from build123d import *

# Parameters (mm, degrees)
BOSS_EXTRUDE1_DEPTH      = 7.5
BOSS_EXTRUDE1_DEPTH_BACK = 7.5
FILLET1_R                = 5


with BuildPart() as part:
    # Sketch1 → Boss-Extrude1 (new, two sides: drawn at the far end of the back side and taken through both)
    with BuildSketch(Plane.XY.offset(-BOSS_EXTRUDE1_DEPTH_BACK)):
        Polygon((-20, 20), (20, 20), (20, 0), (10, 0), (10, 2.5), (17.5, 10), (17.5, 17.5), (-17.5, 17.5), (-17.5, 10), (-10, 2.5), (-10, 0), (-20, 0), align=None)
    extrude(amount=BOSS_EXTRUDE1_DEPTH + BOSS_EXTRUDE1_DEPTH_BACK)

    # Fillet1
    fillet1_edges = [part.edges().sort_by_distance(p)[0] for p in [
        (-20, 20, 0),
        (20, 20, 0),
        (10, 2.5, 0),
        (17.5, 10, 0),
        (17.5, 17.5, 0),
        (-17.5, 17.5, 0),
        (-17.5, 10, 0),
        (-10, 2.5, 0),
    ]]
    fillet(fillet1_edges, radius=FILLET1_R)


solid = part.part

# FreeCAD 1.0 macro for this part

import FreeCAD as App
import Part
import Sketcher


def edges_at(feature, points):
    """Names of the edges that pass closest to the given points."""
    edges = feature.Shape.Edges
    near = lambda p: min(range(len(edges)), key=lambda i: edges[i].distToShape(Part.Vertex(*p))[0])
    return sorted({f"Edge{near(p) + 1}" for p in points})


def add_polygon(sketch, points):
    """Adds a closed chain of lines whose ends are joined by coincident constraints."""
    first, n = sketch.GeometryCount, len(points)
    for a, b in zip(points, points[1:] + points[:1]):
        sketch.addGeometry(Part.LineSegment(App.Vector(*a, 0), App.Vector(*b, 0)), False)
    for i in range(n):
        sketch.addConstraint(Sketcher.Constraint("Coincident", first + i, 2, first + (i + 1) % n, 1))

doc = App.newDocument("Part")
body = doc.addObject("PartDesign::Body", "Body")

sketch1 = body.newObject("Sketcher::SketchObject", "Sketch")
sketch1.AttachmentSupport = (doc.getObject("XY_Plane"), [""])
sketch1.MapMode = "FlatFace"
add_polygon(sketch1, [(20, 20), (-20, 20), (-20, 0), (-10, 0), (-10, 2.5), (-17.5, 10), (-17.5, 17.5), (17.5, 17.5), (17.5, 10), (10, 2.5), (10, 0), (20, 0)])
sketch1.addConstraint([
    Sketcher.Constraint("Horizontal", 0),
    Sketcher.Constraint("Vertical", 1),
    Sketcher.Constraint("Horizontal", 2),
    Sketcher.Constraint("Vertical", 3),
    Sketcher.Constraint("Vertical", 5),
    Sketcher.Constraint("Horizontal", 6),
    Sketcher.Constraint("Vertical", 7),
    Sketcher.Constraint("Vertical", 9),
    Sketcher.Constraint("Horizontal", 10),
    Sketcher.Constraint("Vertical", 11),
    Sketcher.Constraint("Symmetric", 2, 2, 9, 2, -1, 1),
    Sketcher.Constraint("Symmetric", 4, 2, 7, 2, -2),
    Sketcher.Constraint("Symmetric", 1, 2, 10, 2, -2),
    Sketcher.Constraint("Perpendicular", 4, 8),
    Sketcher.Constraint("Horizontal", 3, 2, 8, 2),
    Sketcher.Constraint("DistanceX", 0, 2, 0, 1, 40.0),
    Sketcher.Constraint("DistanceX", 2, 1, 2, 2, 10.0),
    Sketcher.Constraint("DistanceX", 6, 1, 6, 2, 35.0),
    Sketcher.Constraint("DistanceY", 1, 2, 1, 1, 20.0),
    Sketcher.Constraint("DistanceY", 3, 1, 3, 2, 2.5),
    Sketcher.Constraint("DistanceY", 5, 1, 5, 2, 7.5),
])
pad1 = body.newObject("PartDesign::Pad", "Pad")
pad1.Profile = sketch1
pad1.Type = "TwoLengths"
pad1.Length = 7.5
pad1.Length2 = 7.5
doc.recompute()

fillet = body.newObject("PartDesign::Fillet", "Fillet")
fillet.Base = (pad1, edges_at(pad1, [
    (-20, 20, 0),
    (20, 20, 0),
    (10, 2.5, 0),
    (17.5, 10, 0),
    (17.5, 17.5, 0),
    (-17.5, 17.5, 0),
    (-17.5, 10, 0),
    (-10, 2.5, 0),
]))
fillet.Radius = 5

doc.recompute()
